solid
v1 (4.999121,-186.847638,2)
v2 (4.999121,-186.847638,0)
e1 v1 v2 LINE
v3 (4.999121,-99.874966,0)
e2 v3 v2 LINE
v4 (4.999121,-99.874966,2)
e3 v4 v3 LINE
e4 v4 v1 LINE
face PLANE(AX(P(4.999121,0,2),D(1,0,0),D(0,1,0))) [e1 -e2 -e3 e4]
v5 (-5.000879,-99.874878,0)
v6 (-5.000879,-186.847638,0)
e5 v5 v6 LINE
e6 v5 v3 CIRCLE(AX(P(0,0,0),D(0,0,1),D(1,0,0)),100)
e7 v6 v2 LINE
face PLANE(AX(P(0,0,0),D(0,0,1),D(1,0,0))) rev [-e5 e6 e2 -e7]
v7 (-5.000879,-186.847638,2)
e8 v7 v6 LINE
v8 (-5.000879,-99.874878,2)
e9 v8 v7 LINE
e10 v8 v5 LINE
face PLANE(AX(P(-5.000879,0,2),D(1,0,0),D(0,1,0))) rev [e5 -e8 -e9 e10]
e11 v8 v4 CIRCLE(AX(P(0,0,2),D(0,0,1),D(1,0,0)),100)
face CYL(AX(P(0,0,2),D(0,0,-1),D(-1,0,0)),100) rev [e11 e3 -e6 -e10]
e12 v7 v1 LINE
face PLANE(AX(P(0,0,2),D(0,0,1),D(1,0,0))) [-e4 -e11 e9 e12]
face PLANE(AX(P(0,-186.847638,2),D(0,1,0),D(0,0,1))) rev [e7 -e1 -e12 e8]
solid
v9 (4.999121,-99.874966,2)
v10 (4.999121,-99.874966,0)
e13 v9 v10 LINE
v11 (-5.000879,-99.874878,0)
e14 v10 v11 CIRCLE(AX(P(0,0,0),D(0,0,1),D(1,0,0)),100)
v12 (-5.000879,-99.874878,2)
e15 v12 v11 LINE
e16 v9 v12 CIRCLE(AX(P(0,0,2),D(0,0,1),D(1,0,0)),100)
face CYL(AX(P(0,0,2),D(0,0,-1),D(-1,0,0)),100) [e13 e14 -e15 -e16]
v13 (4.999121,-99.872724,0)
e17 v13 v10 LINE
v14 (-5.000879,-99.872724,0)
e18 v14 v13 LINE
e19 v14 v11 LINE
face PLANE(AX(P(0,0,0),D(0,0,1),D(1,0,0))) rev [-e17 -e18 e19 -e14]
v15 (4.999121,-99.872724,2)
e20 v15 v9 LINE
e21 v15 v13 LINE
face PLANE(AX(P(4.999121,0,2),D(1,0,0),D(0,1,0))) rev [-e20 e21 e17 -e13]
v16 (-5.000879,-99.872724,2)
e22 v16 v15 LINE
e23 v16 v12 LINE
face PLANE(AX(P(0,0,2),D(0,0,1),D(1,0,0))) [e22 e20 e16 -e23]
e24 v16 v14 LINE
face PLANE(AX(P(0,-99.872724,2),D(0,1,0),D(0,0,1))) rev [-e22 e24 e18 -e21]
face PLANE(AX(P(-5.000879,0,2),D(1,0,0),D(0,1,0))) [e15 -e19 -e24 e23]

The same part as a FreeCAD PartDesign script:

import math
import FreeCAD as App
import Part
import Sketcher

V = App.Vector
Q = App.Units.Quantity

doc = App.newDocument("Part")
body = doc.addObject("PartDesign::Body", "Body")

sketch1 = doc.addObject("Sketcher::SketchObject", "Sketch")
body.addObject(sketch1)
sketch1.AttachmentSupport = (doc.XY_Plane, [""])
sketch1.MapMode = "FlatFace"
sketch1.addGeometry(Part.ArcOfCircle(Part.Circle(V(0, 0, 0), V(0, 0, 1), 100), math.radians(-92.866488), math.radians(-87.13452)), False)
sketch1.addGeometry(Part.LineSegment(V(-5.000879, -99.874878, 0), V(-5.000879, -186.847638, 0)), False)
sketch1.addGeometry(Part.LineSegment(V(-5.000879, -186.847638, 0), V(4.999121, -186.847638, 0)), False)
sketch1.addGeometry(Part.LineSegment(V(4.999121, -186.847638, 0), V(4.999121, -99.874966, 0)), False)
sketch1.addConstraint(Sketcher.Constraint("Coincident", 0, 1, 1, 1))
sketch1.addConstraint(Sketcher.Constraint("Coincident", 1, 2, 2, 1))
sketch1.addConstraint(Sketcher.Constraint("Coincident", 2, 2, 3, 1))
sketch1.addConstraint(Sketcher.Constraint("Coincident", 3, 2, 0, 2))
sketch1.addConstraint(Sketcher.Constraint("Vertical", 1))
sketch1.addConstraint(Sketcher.Constraint("Horizontal", 2))
sketch1.addConstraint(Sketcher.Constraint("Vertical", 3))
sketch1.addConstraint(Sketcher.Constraint("Coincident", 0, 3, -1, 1))
sketch1.addConstraint(Sketcher.Constraint("Radius", 0, Q("100 mm")))
sketch1.addConstraint(Sketcher.Constraint("DistanceX", 2, 1, 2, 2, Q("10 mm")))
sketch1.addConstraint(Sketcher.Constraint("DistanceY", 1, 2, 1, 1, Q("86.97276 mm")))
sketch1.addConstraint(Sketcher.Constraint("DistanceY", 3, 1, 3, 2, Q("86.972672 mm")))
pad1 = doc.addObject("PartDesign::Pad", "Pad")
body.addObject(pad1)
pad1.Profile = sketch1
pad1.Length = 2
body2 = doc.addObject("PartDesign::Body", "Body001")

sketch2 = doc.addObject("Sketcher::SketchObject", "Sketch001")
body2.addObject(sketch2)
sketch2.AttachmentSupport = (doc.getObject("XY_Plane001"), [""])
sketch2.MapMode = "FlatFace"
sketch2.addGeometry(Part.LineSegment(V(-5.000879, -99.874878, 0), V(-5.000879, -99.872724, 0)), False)
sketch2.addGeometry(Part.LineSegment(V(-5.000879, -99.872724, 0), V(4.999121, -99.872724, 0)), False)
sketch2.addGeometry(Part.LineSegment(V(4.999121, -99.872724, 0), V(4.999121, -99.874966, 0)), False)
sketch2.addGeometry(Part.ArcOfCircle(Part.Circle(V(0, 0, 0), V(0, 0, 1), 100), math.radians(-87.13452), math.radians(0)), False)
sketch2.addGeometry(Part.ArcOfCircle(Part.Circle(V(0, 0, 0), V(0, 0, 1), 100), math.radians(0), math.radians(267.133512)), False)
sketch2.addConstraint(Sketcher.Constraint("Coincident", 0, 2, 1, 1))
sketch2.addConstraint(Sketcher.Constraint("Coincident", 1, 2, 2, 1))
sketch2.addConstraint(Sketcher.Constraint("Coincident", 2, 2, 3, 1))
sketch2.addConstraint(Sketcher.Constraint("Tangent", 3, 2, 4, 1))
sketch2.addConstraint(Sketcher.Constraint("Coincident", 4, 2, 0, 1))
sketch2.addConstraint(Sketcher.Constraint("Vertical", 0))
sketch2.addConstraint(Sketcher.Constraint("Horizontal", 1))
sketch2.addConstraint(Sketcher.Constraint("Vertical", 2))
sketch2.addConstraint(Sketcher.Constraint("Coincident", 3, 3, -1, 1))
sketch2.addConstraint(Sketcher.Constraint("Equal", 3, 4))
sketch2.addConstraint(Sketcher.Constraint("PointOnObject", 3, 2, -1))
sketch2.addConstraint(Sketcher.Constraint("Radius", 3, Q("100 mm")))
sketch2.addConstraint(Sketcher.Constraint("DistanceX", 1, 1, 1, 2, Q("10 mm")))
sketch2.addConstraint(Sketcher.Constraint("DistanceY", 2, 2, 2, 1, Q("0.002242 mm")))
sketch2.addConstraint(Sketcher.Constraint("DistanceY", 0, 1, 0, 2, Q("0.002154 mm")))
pad2 = doc.addObject("PartDesign::Pad", "Pad001")
body2.addObject(pad2)
pad2.Profile = sketch2
pad2.Length = 2

doc.recompute()
